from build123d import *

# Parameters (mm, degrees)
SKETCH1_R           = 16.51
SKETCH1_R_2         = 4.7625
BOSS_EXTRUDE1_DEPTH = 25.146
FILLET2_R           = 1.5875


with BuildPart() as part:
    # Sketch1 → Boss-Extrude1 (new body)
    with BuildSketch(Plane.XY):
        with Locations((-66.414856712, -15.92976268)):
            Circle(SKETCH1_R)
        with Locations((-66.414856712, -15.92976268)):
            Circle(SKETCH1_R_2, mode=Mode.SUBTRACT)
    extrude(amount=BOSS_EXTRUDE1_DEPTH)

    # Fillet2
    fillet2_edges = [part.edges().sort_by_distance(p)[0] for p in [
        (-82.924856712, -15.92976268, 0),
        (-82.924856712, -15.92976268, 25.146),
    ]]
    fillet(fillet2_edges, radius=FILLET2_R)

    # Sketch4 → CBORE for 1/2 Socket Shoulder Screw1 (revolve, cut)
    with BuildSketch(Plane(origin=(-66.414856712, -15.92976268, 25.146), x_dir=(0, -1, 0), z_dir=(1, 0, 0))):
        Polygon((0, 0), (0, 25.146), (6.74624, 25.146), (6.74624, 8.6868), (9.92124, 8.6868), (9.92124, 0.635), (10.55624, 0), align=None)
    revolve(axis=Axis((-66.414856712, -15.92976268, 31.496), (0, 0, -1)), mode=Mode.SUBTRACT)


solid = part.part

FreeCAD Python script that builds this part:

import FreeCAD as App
import Part
import Sketcher

V = App.Vector
Q = App.Units.Quantity


def edges_at(feature, points):
    """Names of the edges that pass closest to the given points."""
    edges = feature.Shape.Edges
    near = lambda p: min(range(len(edges)), key=lambda i: edges[i].distToShape(Part.Vertex(*p))[0])
    return sorted({f"Edge{near(p) + 1}" for p in points})

doc = App.newDocument("Part")
body = doc.addObject("PartDesign::Body", "Body")

sketch1 = body.newObject("Sketcher::SketchObject", "Sketch")
sketch1.AttachmentSupport = (doc.getObject("XY_Plane"), [""])
sketch1.MapMode = "FlatFace"
sketch1.addGeometry([
    Part.Circle(V(-66.4, -15.9, 0), V(0, 0, 1), 16.5),
    Part.Circle(V(-66.4, -15.9, 0), V(0, 0, 1), 4.8),
], False)
sketch1.addConstraint([
    Sketcher.Constraint("Coincident", 1, 3, 0, 3),
    Sketcher.Constraint("Diameter", 0, Q("1.3 in")),
    Sketcher.Constraint("Diameter", 1, Q("0.375 in")),
    Sketcher.Constraint("DistanceX", 0, 3, -1, 1, Q("66.414857 mm")),
    Sketcher.Constraint("DistanceY", 0, 3, -1, 1, Q("15.929763 mm")),
])
pad1 = body.newObject("PartDesign::Pad", "Pad")
pad1.Profile = sketch1
pad1.Length = Q("0.99 in")
doc.recompute()

fillet = body.newObject("PartDesign::Fillet", "Fillet")
fillet.Base = (pad1, edges_at(pad1, [(-82.925, -15.93, 0), (-82.925, -15.93, 25.146)]))
fillet.Radius = Q("0.0625 in")

sketch2 = body.newObject("Sketcher::SketchObject", "Sketch001")
sketch2.AttachmentSupport = (doc.getObject("YZ_Plane"), [""])
sketch2.MapMode = "FlatFace"
sketch2.AttachmentOffset = App.Placement(V(0, 0, -66.414857), App.Rotation())
sketch2.addGeometry([
    Part.LineSegment(V(-15.9, 0, 0), V(-15.9, 25.1, 0)),
    Part.LineSegment(V(-15.9, 25.1, 0), V(-26.5, 25.1, 0)),
    Part.LineSegment(V(-26.5, 25.1, 0), V(-25.9, 24.5, 0)),
    Part.LineSegment(V(-25.9, 24.5, 0), V(-25.9, 16.5, 0)),
    Part.LineSegment(V(-25.9, 16.5, 0), V(-22.7, 16.5, 0)),
    Part.LineSegment(V(-22.7, 16.5, 0), V(-22.7, 0, 0)),
    Part.LineSegment(V(-22.7, 0, 0), V(-15.9, 0, 0)),
], False)
sketch2.addGeometry(Part.LineSegment(V(-15.9, 25.1, 0), V(-15.9, 0, 0)), True)
sketch2.addConstraint([
    Sketcher.Constraint("Coincident", 0, 2, 1, 1),
    Sketcher.Constraint("Coincident", 1, 2, 2, 1),
    Sketcher.Constraint("Coincident", 2, 2, 3, 1),
    Sketcher.Constraint("Coincident", 3, 2, 4, 1),
    Sketcher.Constraint("Coincident", 4, 2, 5, 1),
    Sketcher.Constraint("Coincident", 5, 2, 6, 1),
    Sketcher.Constraint("Coincident", 6, 2, 0, 1),
    Sketcher.Constraint("Vertical", 0),
    Sketcher.Constraint("Horizontal", 1),
    Sketcher.Constraint("Vertical", 3),
    Sketcher.Constraint("Horizontal", 4),
    Sketcher.Constraint("Vertical", 5),
    Sketcher.Constraint("Horizontal", 6),
    Sketcher.Constraint("Vertical", 7),
    Sketcher.Constraint("Coincident", 7, 1, 0, 2),
    Sketcher.Constraint("PointOnObject", 5, 2, -1),
    Sketcher.Constraint("PointOnObject", 7, 2, -1),
    Sketcher.Constraint("Angle", 2, Q("-45 deg")),
    Sketcher.Constraint("DistanceY", 0, 1, 0, 2, Q("0.99 in")),
    Sketcher.Constraint("DistanceX", 4, 1, 4, 2, Q("0.125 in")),
    Sketcher.Constraint("DistanceY", 3, 2, 3, 1, Q("0.317 in")),
    Sketcher.Constraint("DistanceY", 5, 2, 5, 1, Q("0.648 in")),
    Sketcher.Constraint("DistanceX", 1, 2, 1, 1, Q("0.4156 in")),
    Sketcher.Constraint("DistanceX", 0, 2, -1, 1, Q("15.929763 mm")),
])
groove = body.newObject("PartDesign::Groove", "Groove")
groove.Profile = sketch2
groove.ReferenceAxis = (sketch2, ["Axis0"])
groove.Angle = 360

doc.recompute()
